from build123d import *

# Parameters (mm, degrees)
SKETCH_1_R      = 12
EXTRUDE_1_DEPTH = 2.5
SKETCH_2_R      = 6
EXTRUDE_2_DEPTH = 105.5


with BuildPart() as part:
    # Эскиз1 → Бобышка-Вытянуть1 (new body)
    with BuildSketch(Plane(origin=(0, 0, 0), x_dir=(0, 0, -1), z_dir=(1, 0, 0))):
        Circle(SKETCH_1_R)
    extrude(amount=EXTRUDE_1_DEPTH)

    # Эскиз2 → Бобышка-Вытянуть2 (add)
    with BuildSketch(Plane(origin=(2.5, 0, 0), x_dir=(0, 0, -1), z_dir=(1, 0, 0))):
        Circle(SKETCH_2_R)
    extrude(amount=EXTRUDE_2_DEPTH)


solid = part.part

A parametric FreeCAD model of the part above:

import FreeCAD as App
import Part
import Sketcher
from FreeCAD import Vector

doc = App.newDocument("Part")
params = doc.addObject("Spreadsheet::Sheet", "Params")
for row, (alias, value) in enumerate([
    ("sketch1_diameter", "24 mm"),
    ("pad1_length", "2.5 mm"),
    ("sketch2_diameter", "12 mm"),
    ("pad2_length", "105.5 mm"),
], start=1):
    params.set(f"A{row}", alias)
    params.set(f"B{row}", "=" + value)
    params.setAlias(f"B{row}", alias)

body = doc.addObject("PartDesign::Body", "Body")

sketch1 = doc.addObject("Sketcher::SketchObject", "Sketch")
body.addObject(sketch1)
sketch1.AttachmentSupport = (doc.YZ_Plane, [""])
sketch1.MapMode = "FlatFace"
sketch1.addGeometry(Part.Circle(Vector(0, 0, 0), Vector(0, 0, 1), 12), False)
sketch1.addConstraint(Sketcher.Constraint("Coincident", 0, 3, -1, 1))
sketch1.addConstraint(Sketcher.Constraint("Diameter", 0, 24.0))
sketch1.setExpression("Constraints[1]", "Params.sketch1_diameter")
pad1 = doc.addObject("PartDesign::Pad", "Pad")
body.addObject(pad1)
pad1.Profile = sketch1
pad1.setExpression("Length", "Params.pad1_length")

sketch2 = doc.addObject("Sketcher::SketchObject", "Sketch001")
body.addObject(sketch2)
sketch2.AttachmentSupport = (doc.YZ_Plane, [""])
sketch2.MapMode = "FlatFace"
sketch2.AttachmentOffset = App.Placement(Vector(0, 0, 2.5), App.Rotation())
sketch2.addGeometry(Part.Circle(Vector(0, 0, 0), Vector(0, 0, 1), 6), False)
sketch2.addConstraint(Sketcher.Constraint("Coincident", 0, 3, -1, 1))
sketch2.addConstraint(Sketcher.Constraint("Diameter", 0, 12.0))
sketch2.setExpression("Constraints[1]", "Params.sketch2_diameter")
pad2 = doc.addObject("PartDesign::Pad", "Pad001")
body.addObject(pad2)
pad2.Profile = sketch2
pad2.setExpression("Length", "Params.pad2_length")

doc.recompute()
